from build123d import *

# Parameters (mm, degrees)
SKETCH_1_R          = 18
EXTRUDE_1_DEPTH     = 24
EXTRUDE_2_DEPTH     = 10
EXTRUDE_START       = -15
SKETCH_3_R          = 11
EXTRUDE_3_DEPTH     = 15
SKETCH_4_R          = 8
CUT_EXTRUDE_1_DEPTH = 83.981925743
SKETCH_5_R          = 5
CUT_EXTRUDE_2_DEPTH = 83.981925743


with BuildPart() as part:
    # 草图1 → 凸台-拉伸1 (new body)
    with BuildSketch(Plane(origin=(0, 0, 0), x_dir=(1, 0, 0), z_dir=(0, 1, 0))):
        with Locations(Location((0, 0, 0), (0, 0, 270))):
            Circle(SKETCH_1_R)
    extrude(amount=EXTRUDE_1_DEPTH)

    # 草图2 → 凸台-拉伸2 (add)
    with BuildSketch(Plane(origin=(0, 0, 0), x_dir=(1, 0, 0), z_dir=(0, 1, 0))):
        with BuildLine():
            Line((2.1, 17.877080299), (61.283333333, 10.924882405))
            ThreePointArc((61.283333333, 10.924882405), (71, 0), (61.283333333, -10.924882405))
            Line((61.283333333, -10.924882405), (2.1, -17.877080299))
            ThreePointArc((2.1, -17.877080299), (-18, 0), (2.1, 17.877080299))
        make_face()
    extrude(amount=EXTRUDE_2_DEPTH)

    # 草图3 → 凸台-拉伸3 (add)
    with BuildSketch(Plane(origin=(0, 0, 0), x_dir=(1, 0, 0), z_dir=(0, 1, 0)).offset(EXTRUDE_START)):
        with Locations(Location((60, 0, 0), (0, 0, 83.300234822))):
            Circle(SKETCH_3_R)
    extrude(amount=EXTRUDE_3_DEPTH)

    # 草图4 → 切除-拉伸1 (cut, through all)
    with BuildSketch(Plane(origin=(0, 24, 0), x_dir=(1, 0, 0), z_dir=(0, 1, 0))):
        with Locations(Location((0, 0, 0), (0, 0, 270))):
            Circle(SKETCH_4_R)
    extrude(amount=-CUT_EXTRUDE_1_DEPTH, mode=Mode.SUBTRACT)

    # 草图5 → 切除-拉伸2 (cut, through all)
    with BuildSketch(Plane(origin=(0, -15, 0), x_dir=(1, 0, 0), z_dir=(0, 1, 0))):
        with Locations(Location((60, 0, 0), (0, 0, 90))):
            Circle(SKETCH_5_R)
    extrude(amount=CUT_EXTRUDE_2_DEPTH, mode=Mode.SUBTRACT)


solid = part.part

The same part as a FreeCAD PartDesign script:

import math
import FreeCAD as App
import Part
import Sketcher
from FreeCAD import Vector

doc = App.newDocument("Part")
body = doc.addObject("PartDesign::Body", "Body")

sketch1 = doc.addObject("Sketcher::SketchObject", "Sketch")
body.addObject(sketch1)
sketch1.AttachmentSupport = (doc.XZ_Plane, [""])
sketch1.MapMode = "FlatFace"
sketch1.addGeometry(Part.Circle(Vector(0, 0, 0), Vector(0, 0, 1), 18), False)
sketch1.addConstraint([
    Sketcher.Constraint("Coincident", 0, 3, -1, 1),
    Sketcher.Constraint("Diameter", 0, 36.0),
])
pad1 = doc.addObject("PartDesign::Pad", "Pad")
body.addObject(pad1)
pad1.Profile = sketch1
pad1.Length = 24
pad1.Reversed = True

sketch2 = doc.addObject("Sketcher::SketchObject", "Sketch001")
body.addObject(sketch2)
sketch2.AttachmentSupport = (doc.XZ_Plane, [""])
sketch2.MapMode = "FlatFace"
sketch2.addGeometry([
    Part.LineSegment(Vector(61, -11, 0), Vector(2, -18, 0)),
    Part.ArcOfCircle(Part.Circle(Vector(0, 0, 0), Vector(0, 0, 1), 18), math.radians(83), math.radians(277)),
    Part.LineSegment(Vector(2, 18, 0), Vector(61, 11, 0)),
    Part.ArcOfCircle(Part.Circle(Vector(60, 0, 0), Vector(0, 0, 1), 11), math.radians(-83), math.radians(83)),
], False)
sketch2.addConstraint([
    Sketcher.Constraint("Tangent", 0, 2, 1, 2),
    Sketcher.Constraint("Tangent", 1, 1, 2, 1),
    Sketcher.Constraint("Tangent", 2, 2, 3, 2),
    Sketcher.Constraint("Tangent", 3, 1, 0, 1),
    Sketcher.Constraint("Coincident", 1, 3, -1, 1),
    Sketcher.Constraint("PointOnObject", 3, 3, -1),
    Sketcher.Constraint("Radius", 1, 18.0),
    Sketcher.Constraint("Radius", 3, 11.0),
    Sketcher.Constraint("DistanceX", -1, 1, 3, 3, 60.0),
])
pad2 = doc.addObject("PartDesign::Pad", "Pad001")
body.addObject(pad2)
pad2.Profile = sketch2
pad2.Length = 10
pad2.Reversed = True

sketch3 = doc.addObject("Sketcher::SketchObject", "Sketch002")
body.addObject(sketch3)
sketch3.AttachmentSupport = (doc.XZ_Plane, [""])
sketch3.MapMode = "FlatFace"
sketch3.AttachmentOffset = App.Placement(Vector(0, 0, 15), App.Rotation())
sketch3.addGeometry(Part.Circle(Vector(60, 0, 0), Vector(0, 0, 1), 11), False)
sketch3.addConstraint([
    Sketcher.Constraint("PointOnObject", 0, 3, -1),
    Sketcher.Constraint("Diameter", 0, 22.0),
    Sketcher.Constraint("DistanceX", -1, 1, 0, 3, 60.0),
])
pad3 = doc.addObject("PartDesign::Pad", "Pad002")
body.addObject(pad3)
pad3.Profile = sketch3
pad3.Length = 15
pad3.Reversed = True

sketch4 = doc.addObject("Sketcher::SketchObject", "Sketch003")
body.addObject(sketch4)
sketch4.AttachmentSupport = (doc.XZ_Plane, [""])
sketch4.MapMode = "FlatFace"
sketch4.AttachmentOffset = App.Placement(Vector(0, 0, -24), App.Rotation())
sketch4.addGeometry(Part.Circle(Vector(0, 0, 0), Vector(0, 0, 1), 8), False)
sketch4.addConstraint([
    Sketcher.Constraint("Coincident", 0, 3, -1, 1),
    Sketcher.Constraint("Diameter", 0, 16.0),
])
pocket1 = doc.addObject("PartDesign::Pocket", "Pocket")
body.addObject(pocket1)
pocket1.Profile = sketch4
pocket1.Type = "ThroughAll"
pocket1.Reversed = True

sketch5 = doc.addObject("Sketcher::SketchObject", "Sketch004")
body.addObject(sketch5)
sketch5.AttachmentSupport = (doc.XZ_Plane, [""])
sketch5.MapMode = "FlatFace"
sketch5.AttachmentOffset = App.Placement(Vector(0, 0, 15), App.Rotation())
sketch5.addGeometry(Part.Circle(Vector(60, 0, 0), Vector(0, 0, 1), 5), False)
sketch5.addConstraint([
    Sketcher.Constraint("PointOnObject", 0, 3, -1),
    Sketcher.Constraint("Diameter", 0, 10.0),
    Sketcher.Constraint("DistanceX", -1, 1, 0, 3, 60.0),
])
pocket2 = doc.addObject("PartDesign::Pocket", "Pocket001")
body.addObject(pocket2)
pocket2.Profile = sketch5
pocket2.Type = "ThroughAll"

doc.recompute()
